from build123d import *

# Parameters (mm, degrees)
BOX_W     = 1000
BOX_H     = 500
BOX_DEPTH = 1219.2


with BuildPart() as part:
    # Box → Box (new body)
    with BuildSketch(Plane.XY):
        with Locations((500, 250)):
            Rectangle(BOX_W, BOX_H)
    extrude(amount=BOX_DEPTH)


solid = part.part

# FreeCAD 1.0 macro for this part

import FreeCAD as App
import Part
import Sketcher

V = App.Vector
Q = App.Units.Quantity

doc = App.newDocument("Part")
body = doc.addObject("PartDesign::Body", "Body")

sketch1 = body.newObject("Sketcher::SketchObject", "Sketch")
sketch1.AttachmentSupport = (doc.getObject("XY_Plane"), [""])
sketch1.MapMode = "FlatFace"
sketch1.addGeometry([
    Part.LineSegment(V(0, 500, 0), V(0, 0, 0)),
    Part.LineSegment(V(0, 0, 0), V(1000, 0, 0)),
    Part.LineSegment(V(1000, 0, 0), V(1000, 500, 0)),
    Part.LineSegment(V(1000, 500, 0), V(0, 500, 0)),
], False)
sketch1.addConstraint([
    Sketcher.Constraint("Coincident", 0, 2, 1, 1),
    Sketcher.Constraint("Coincident", 1, 2, 2, 1),
    Sketcher.Constraint("Coincident", 2, 2, 3, 1),
    Sketcher.Constraint("Coincident", 3, 2, 0, 1),
    Sketcher.Constraint("Vertical", 0),
    Sketcher.Constraint("Horizontal", 1),
    Sketcher.Constraint("Vertical", 2),
    Sketcher.Constraint("Horizontal", 3),
    Sketcher.Constraint("Coincident", 0, 2, -1, 1),
    Sketcher.Constraint("DistanceX", 1, 1, 1, 2, Q("1000 mm")),
    Sketcher.Constraint("DistanceY", 0, 2, 0, 1, Q("500 mm")),
])
pad1 = body.newObject("PartDesign::Pad", "Pad")
pad1.Profile = sketch1
pad1.Length = 1219.2

doc.recompute()
